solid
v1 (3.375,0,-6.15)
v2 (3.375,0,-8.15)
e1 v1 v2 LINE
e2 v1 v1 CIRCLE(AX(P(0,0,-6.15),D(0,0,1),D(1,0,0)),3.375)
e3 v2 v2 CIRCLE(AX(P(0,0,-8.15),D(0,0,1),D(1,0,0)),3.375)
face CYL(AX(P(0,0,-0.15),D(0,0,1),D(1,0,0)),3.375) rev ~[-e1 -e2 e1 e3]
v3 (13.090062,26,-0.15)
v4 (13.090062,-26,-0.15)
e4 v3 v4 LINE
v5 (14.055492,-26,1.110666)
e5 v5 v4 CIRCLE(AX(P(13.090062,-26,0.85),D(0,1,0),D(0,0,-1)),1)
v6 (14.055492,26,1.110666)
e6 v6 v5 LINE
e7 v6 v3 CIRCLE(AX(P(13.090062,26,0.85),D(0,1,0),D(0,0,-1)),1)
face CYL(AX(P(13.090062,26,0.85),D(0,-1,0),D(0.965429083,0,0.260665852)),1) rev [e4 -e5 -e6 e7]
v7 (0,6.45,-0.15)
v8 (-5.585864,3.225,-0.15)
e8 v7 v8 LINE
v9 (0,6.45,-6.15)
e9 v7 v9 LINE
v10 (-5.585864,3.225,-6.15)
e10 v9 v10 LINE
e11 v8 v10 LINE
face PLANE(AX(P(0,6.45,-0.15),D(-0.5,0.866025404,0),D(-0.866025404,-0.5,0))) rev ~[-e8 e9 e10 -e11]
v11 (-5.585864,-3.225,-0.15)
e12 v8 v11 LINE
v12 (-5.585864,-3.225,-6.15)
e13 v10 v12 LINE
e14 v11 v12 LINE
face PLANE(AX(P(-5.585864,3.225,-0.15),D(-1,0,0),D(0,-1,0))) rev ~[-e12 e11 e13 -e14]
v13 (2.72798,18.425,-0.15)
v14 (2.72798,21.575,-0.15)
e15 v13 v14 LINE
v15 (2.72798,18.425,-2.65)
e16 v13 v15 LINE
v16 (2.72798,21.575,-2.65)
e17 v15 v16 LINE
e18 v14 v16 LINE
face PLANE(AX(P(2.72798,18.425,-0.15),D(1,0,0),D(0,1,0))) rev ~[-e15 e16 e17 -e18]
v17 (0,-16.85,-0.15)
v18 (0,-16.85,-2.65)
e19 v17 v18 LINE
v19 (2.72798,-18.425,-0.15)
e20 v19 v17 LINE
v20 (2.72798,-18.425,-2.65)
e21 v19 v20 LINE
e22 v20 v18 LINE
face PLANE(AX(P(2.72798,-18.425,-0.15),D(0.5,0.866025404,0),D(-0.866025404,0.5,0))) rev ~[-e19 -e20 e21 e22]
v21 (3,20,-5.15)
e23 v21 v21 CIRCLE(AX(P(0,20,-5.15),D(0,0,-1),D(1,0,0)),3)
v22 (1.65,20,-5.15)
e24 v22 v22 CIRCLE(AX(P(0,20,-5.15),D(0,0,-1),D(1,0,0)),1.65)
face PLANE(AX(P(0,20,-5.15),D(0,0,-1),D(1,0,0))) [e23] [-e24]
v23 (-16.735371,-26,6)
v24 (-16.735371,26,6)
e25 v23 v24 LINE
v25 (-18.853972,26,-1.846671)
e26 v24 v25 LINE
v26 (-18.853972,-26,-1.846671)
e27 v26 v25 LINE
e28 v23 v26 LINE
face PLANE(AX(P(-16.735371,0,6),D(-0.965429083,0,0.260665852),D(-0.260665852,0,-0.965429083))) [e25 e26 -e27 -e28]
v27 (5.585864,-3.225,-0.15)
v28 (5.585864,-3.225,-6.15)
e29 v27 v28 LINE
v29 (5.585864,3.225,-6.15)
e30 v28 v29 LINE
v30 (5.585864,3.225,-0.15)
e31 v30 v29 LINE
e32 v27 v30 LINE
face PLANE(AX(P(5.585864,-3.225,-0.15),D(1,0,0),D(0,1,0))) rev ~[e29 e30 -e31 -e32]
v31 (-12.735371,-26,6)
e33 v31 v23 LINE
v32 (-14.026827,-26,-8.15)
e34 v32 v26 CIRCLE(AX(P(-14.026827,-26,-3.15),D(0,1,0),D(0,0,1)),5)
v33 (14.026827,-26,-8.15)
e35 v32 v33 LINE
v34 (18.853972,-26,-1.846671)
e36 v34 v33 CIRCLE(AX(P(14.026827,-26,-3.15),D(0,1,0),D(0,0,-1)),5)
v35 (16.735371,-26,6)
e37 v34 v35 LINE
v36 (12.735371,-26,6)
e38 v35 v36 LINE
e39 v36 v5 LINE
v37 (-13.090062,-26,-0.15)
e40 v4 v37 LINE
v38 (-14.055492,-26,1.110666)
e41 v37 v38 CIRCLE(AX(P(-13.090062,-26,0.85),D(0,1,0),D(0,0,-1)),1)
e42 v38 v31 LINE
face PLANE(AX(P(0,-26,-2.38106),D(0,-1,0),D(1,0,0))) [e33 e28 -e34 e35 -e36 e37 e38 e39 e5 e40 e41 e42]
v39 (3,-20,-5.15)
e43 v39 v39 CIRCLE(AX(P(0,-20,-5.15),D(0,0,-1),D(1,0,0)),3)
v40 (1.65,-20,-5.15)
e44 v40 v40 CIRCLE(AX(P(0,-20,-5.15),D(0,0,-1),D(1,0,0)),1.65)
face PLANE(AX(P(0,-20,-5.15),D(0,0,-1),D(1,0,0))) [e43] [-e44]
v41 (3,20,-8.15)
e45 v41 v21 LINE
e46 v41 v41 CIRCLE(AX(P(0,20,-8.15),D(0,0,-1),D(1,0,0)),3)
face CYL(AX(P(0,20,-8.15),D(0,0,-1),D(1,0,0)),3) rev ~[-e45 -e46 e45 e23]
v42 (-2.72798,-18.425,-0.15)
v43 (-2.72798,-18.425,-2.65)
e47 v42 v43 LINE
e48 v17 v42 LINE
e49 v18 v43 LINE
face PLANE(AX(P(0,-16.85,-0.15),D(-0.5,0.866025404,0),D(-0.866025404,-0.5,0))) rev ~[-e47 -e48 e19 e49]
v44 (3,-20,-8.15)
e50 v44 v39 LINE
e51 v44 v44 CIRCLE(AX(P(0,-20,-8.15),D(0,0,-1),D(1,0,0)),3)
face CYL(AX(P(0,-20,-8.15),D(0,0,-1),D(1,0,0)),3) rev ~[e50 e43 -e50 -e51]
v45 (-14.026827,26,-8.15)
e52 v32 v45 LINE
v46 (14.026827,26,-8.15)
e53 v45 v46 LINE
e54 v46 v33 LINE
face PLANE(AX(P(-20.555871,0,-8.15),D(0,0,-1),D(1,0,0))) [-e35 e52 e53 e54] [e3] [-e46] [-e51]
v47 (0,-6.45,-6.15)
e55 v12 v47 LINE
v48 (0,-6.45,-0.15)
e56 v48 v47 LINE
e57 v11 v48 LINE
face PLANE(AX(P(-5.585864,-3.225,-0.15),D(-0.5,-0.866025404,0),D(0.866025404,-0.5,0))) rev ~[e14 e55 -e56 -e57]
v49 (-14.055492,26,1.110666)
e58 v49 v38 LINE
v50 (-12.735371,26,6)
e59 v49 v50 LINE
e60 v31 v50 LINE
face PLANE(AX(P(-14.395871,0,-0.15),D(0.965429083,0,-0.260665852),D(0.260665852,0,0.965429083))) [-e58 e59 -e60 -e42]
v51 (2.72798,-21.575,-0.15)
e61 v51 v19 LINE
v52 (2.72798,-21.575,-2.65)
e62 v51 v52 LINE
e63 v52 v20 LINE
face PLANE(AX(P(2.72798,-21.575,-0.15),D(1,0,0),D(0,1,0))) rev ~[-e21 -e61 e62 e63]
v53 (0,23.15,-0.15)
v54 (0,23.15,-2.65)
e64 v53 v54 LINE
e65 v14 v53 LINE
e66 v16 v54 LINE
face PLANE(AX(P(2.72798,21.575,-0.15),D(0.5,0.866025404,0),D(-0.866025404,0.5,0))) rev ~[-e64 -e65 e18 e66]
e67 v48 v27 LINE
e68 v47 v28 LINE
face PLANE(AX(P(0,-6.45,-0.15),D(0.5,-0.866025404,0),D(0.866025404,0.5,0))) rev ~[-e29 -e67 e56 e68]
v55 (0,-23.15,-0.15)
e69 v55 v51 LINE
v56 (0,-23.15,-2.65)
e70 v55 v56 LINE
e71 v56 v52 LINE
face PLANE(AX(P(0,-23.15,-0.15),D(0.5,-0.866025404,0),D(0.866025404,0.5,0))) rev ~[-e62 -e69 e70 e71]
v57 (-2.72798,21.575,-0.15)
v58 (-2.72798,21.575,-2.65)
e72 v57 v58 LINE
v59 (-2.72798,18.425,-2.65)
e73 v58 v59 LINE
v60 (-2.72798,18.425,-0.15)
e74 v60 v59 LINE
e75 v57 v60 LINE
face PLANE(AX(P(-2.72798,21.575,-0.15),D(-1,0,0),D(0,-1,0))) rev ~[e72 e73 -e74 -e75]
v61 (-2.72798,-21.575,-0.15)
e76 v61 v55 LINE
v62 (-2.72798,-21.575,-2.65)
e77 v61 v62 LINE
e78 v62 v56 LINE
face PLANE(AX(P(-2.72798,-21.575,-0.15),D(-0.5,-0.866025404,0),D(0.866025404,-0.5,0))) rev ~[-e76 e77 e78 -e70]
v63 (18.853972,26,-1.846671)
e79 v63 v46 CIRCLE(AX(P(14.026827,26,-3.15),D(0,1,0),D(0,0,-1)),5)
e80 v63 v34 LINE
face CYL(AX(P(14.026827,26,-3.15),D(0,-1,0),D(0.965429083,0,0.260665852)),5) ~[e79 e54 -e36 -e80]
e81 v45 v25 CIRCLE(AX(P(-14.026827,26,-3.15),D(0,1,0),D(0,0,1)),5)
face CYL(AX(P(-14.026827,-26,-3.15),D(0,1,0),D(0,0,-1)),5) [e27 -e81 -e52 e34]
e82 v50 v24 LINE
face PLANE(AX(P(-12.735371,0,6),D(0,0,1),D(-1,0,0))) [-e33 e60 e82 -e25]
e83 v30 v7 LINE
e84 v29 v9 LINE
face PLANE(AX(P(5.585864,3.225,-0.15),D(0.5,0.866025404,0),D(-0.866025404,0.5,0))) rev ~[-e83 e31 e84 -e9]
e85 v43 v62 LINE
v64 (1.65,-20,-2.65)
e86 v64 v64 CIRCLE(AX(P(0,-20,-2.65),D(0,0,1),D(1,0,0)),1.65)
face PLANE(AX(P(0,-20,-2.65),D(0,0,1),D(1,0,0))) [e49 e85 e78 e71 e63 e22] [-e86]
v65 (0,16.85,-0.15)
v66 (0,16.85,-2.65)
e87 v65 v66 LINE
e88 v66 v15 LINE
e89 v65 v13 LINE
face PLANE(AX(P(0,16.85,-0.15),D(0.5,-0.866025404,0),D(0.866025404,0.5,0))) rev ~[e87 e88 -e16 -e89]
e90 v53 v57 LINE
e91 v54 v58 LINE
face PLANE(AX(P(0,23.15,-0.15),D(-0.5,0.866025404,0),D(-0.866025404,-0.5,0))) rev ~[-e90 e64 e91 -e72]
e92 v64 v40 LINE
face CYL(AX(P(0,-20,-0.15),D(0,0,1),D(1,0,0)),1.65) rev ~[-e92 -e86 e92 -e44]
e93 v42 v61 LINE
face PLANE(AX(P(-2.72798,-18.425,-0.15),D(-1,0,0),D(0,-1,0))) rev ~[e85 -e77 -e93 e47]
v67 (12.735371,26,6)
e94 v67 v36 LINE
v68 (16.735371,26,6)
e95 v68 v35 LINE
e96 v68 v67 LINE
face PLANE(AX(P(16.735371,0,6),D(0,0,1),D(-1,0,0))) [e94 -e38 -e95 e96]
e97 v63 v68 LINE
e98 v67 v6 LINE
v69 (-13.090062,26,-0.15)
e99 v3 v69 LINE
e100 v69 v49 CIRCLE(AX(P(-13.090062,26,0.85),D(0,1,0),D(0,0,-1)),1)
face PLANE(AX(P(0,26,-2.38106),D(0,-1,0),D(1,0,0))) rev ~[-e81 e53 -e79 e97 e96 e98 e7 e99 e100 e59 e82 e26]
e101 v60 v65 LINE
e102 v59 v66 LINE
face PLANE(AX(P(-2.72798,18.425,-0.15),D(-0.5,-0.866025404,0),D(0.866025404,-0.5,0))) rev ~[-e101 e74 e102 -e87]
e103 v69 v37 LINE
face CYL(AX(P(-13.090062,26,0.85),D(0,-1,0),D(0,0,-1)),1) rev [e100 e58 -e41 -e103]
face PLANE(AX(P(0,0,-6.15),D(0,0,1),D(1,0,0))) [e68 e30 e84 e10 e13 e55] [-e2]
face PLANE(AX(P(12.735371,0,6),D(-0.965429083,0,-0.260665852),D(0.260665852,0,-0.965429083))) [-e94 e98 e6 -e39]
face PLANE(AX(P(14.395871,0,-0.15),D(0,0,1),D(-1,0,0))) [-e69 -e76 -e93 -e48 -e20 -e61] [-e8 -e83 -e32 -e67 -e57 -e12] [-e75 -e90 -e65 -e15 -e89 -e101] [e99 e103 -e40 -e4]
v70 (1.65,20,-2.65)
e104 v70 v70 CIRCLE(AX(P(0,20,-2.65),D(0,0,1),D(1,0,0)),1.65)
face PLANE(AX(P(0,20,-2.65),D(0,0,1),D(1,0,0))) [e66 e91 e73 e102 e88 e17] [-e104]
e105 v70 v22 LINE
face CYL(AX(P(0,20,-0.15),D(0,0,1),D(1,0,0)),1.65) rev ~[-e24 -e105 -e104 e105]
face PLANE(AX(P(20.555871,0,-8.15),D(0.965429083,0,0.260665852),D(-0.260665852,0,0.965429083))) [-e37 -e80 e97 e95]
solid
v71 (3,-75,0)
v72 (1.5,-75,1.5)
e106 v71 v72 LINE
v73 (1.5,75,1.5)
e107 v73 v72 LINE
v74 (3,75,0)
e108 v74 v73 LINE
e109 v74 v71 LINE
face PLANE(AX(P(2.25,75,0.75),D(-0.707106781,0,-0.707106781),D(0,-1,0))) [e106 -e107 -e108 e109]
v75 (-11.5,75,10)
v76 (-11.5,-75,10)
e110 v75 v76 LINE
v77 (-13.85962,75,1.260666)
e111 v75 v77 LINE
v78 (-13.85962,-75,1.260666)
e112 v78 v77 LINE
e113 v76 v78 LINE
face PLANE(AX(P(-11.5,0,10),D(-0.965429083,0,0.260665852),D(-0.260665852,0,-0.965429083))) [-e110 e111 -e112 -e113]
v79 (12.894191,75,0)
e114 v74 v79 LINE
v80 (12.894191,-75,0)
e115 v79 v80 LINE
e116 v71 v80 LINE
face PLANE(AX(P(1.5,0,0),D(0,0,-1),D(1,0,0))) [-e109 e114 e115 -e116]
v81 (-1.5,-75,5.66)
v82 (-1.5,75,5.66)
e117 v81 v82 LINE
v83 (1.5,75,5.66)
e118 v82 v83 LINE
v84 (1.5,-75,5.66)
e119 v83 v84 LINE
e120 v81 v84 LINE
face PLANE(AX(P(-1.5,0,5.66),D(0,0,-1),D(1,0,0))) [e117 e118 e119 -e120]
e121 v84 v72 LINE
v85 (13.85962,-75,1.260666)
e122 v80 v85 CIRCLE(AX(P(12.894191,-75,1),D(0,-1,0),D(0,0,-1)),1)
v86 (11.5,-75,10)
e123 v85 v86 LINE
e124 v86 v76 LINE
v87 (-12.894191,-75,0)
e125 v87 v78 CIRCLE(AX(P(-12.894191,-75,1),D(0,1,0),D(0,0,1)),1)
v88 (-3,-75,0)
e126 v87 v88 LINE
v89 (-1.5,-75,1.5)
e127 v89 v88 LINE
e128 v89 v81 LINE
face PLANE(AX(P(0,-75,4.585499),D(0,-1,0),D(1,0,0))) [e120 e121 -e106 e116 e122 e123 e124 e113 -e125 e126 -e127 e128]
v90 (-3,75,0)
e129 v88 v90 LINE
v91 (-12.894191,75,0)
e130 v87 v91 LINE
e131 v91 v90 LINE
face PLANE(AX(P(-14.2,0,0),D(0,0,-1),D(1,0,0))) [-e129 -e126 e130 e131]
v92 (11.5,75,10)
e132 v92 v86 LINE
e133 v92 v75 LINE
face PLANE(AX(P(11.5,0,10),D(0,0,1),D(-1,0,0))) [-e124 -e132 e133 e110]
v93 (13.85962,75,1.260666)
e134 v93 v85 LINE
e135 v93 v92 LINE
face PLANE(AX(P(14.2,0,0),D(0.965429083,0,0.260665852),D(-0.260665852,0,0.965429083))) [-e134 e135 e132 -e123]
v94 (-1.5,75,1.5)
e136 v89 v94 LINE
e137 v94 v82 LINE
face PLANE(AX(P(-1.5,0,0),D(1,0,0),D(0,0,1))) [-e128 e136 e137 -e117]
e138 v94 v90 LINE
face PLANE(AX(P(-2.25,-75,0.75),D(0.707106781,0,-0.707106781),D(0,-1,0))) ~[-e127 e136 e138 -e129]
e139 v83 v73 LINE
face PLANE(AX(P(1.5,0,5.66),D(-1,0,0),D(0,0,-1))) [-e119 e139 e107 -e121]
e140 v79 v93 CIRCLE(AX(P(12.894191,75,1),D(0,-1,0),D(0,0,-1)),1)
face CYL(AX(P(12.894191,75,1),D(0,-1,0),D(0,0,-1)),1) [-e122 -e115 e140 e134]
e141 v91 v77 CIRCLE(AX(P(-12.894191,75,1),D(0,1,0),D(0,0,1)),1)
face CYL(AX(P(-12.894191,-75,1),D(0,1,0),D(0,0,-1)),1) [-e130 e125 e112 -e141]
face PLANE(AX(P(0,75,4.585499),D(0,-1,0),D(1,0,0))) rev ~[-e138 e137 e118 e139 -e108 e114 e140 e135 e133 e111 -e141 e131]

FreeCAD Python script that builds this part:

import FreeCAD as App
import Part
import Sketcher
Q = App.Units.Quantity


def edges_at(feature, points):
    """Names of the edges that pass closest to the given points."""
    edges = feature.Shape.Edges
    near = lambda p: min(range(len(edges)), key=lambda i: edges[i].distToShape(Part.Vertex(*p))[0])
    return sorted({f"Edge{near(p) + 1}" for p in points})


def add_polygon(sketch, points):
    """Adds a closed chain of lines whose ends are joined by coincident constraints."""
    first, n = sketch.GeometryCount, len(points)
    for a, b in zip(points, points[1:] + points[:1]):
        sketch.addGeometry(Part.LineSegment(App.Vector(*a, 0), App.Vector(*b, 0)), False)
    for i in range(n):
        sketch.addConstraint(Sketcher.Constraint("Coincident", first + i, 2, first + (i + 1) % n, 1))

doc = App.newDocument("Part")
body = doc.addObject("PartDesign::Body", "Body")

# Sketch on XZ plane
sketch1 = body.newObject("Sketcher::SketchObject", "Sketch")
sketch1.AttachmentSupport = (doc.getObject("XZ_Plane"), [""])
sketch1.MapMode = "FlatFace"
add_polygon(sketch1, [(-1.5, 5.7), (1.5, 5.7), (1.5, 0), (14.2, 0), (11.5, 10), (-11.5, 10), (-14.2, 0), (-1.5, 0)])  # lines 0-7
sketch1.addConstraint([
    Sketcher.Constraint("Horizontal", 0),
    Sketcher.Constraint("Vertical", 1),
    Sketcher.Constraint("Horizontal", 2),
    Sketcher.Constraint("Horizontal", 4),
    Sketcher.Constraint("Horizontal", 6),
    Sketcher.Constraint("Vertical", 7),
    Sketcher.Constraint("Symmetric", 2, 2, 5, 2, -1, 1),
    Sketcher.Constraint("Symmetric", 1, 2, 6, 2, -2),
    Sketcher.Constraint("Equal", 3, 5),
    Sketcher.Constraint("DistanceX", 0, 1, 0, 2, 3.0),
    Sketcher.Constraint("DistanceX", 4, 2, 4, 1, 23.0),
    Sketcher.Constraint("DistanceX", 2, 1, 2, 2, 12.7),
    Sketcher.Constraint("DistanceY", -1, 1, 3, 2, 10.0),
    Sketcher.Constraint("DistanceY", 1, 2, 1, 1, 5.66),
])
pad1 = body.newObject("PartDesign::Pad", "Pad")
pad1.Profile = sketch1
pad1.Length = 150
pad1.Midplane = True
doc.recompute()

chamfer = body.newObject("PartDesign::Chamfer", "Chamfer")
chamfer.Base = (pad1, edges_at(pad1, [(-1.5, 0, 0), (1.5, 0, 0)]))
chamfer.Size = 1.5
doc.recompute()

fillet = body.newObject("PartDesign::Fillet", "Fillet")
fillet.Base = (chamfer, edges_at(chamfer, [(14.2, 0, 0), (-14.2, 0, 0)]))
fillet.Radius = 1
body2 = doc.addObject("PartDesign::Body", "Body001")

# Sketch on XZ plane
sketch2 = body2.newObject("Sketcher::SketchObject", "Sketch001")
sketch2.AttachmentSupport = (doc.getObject("XZ_Plane001"), [""])
sketch2.MapMode = "FlatFace"
add_polygon(sketch2, [(-20.6, -8.2), (20.6, -8.2), (16.7, 6), (12.7, 6), (14.4, -0.1), (-14.4, -0.1), (-12.7, 6), (-16.7, 6)])  # lines 0-7
sketch2.addConstraint([
    Sketcher.Constraint("Horizontal", 0),
    Sketcher.Constraint("Horizontal", 2),
    Sketcher.Constraint("Horizontal", 4),
    Sketcher.Constraint("Horizontal", 6),
    Sketcher.Constraint("Symmetric", 2, 2, 5, 2, -2),
    Sketcher.Constraint("Parallel", 1, 3),
    Sketcher.Constraint("Parallel", 5, 7),
    Sketcher.Constraint("Equal", 2, 6),
    Sketcher.Constraint("Equal", 3, 5),
    Sketcher.Constraint("DistanceX", 2, 2, 2, 1, 4.0),
    Sketcher.Constraint("DistanceY", -1, 1, 1, 2, 6.0),
    Sketcher.Constraint("DistanceY", 0, 2, 3, 2, 8.0),
    Sketcher.Constraint("DistanceY", 0, 2, -1, 1, 8.15),
    Sketcher.Constraint("DistanceX", 3, 2, 0, 2, 6.16),
    Sketcher.Constraint("DistanceX", 0, 1, 0, 2, 41.111743),
])
pad2 = body2.newObject("PartDesign::Pad", "Pad001")
pad2.Profile = sketch2
pad2.Length = 52
pad2.Midplane = True

# Sketch on XY plane
sketch3 = body2.newObject("Sketcher::SketchObject", "Sketch002")
sketch3.AttachmentSupport = (doc.getObject("XY_Plane001"), [""])
sketch3.MapMode = "FlatFace"
sketch3.AttachmentOffset = App.Placement(App.Vector(0, 0, -0.15), App.Rotation())
sketch3.addGeometry([
    Part.Circle(App.Vector(0, 0, 0), App.Vector(0, 0, 1), 3.4),
    Part.Circle(App.Vector(0, 20, 0), App.Vector(0, 0, 1), 1.6),
    Part.Circle(App.Vector(0, -20, 0), App.Vector(0, 0, 1), 1.6),
], False)
sketch3.addConstraint([
    Sketcher.Constraint("Coincident", 0, 3, -1, 1),
    Sketcher.Constraint("Equal", 1, 2),
    Sketcher.Constraint("Symmetric", 1, 3, 2, 3, -1, 1),
    Sketcher.Constraint("PointOnObject", 1, 3, -2),
    Sketcher.Constraint("Diameter", 1, 3.3),
    Sketcher.Constraint("Diameter", 0, 6.75),
    Sketcher.Constraint("DistanceY", -1, 1, 1, 3, 20.0),
])
pocket1 = body2.newObject("PartDesign::Pocket", "Pocket")
pocket1.Profile = sketch3
pocket1.Type = "ThroughAll"

# Sketch on XY plane
sketch4 = body2.newObject("Sketcher::SketchObject", "Sketch003")
sketch4.AttachmentSupport = (doc.getObject("XY_Plane001"), [""])
sketch4.MapMode = "FlatFace"
sketch4.AttachmentOffset = App.Placement(App.Vector(0, 0, -0.15), App.Rotation())
add_polygon(sketch4, [(0, -6.5), (5.6, -3.2), (5.6, 3.2), (0, 6.5), (-5.6, 3.2), (-5.6, -3.2)])  # lines 0-5
sketch4.addGeometry(Part.Circle(App.Vector(0, 0, 0), App.Vector(0, 0, 1), 3.4), False)  # 6
sketch4.addConstraint([
    Sketcher.Constraint("Vertical", 1),
    Sketcher.Constraint("Vertical", 4),
    Sketcher.Constraint("Coincident", 6, 3, -1, 1),
    Sketcher.Constraint("Symmetric", 0, 2, 3, 2, -1, 1),
    Sketcher.Constraint("Symmetric", 2, 2, 5, 2, -1, 1),
    Sketcher.Constraint("PointOnObject", 2, 2, -2),
    Sketcher.Constraint("Parallel", 2, 5),
    Sketcher.Constraint("Horizontal", 1, 2, 3, 2),
    Sketcher.Constraint("Diameter", 6, 6.75),
    Sketcher.Constraint("Angle", 0, Q("30 deg")),
    Sketcher.Constraint("DistanceY", 1, 1, 1, 2, 6.45),
    Sketcher.Constraint("Distance", 0, 6.45),
])
pocket2 = body2.newObject("PartDesign::Pocket", "Pocket001")
pocket2.Profile = sketch4
pocket2.Length = 6
doc.recompute()

fillet2 = body2.newObject("PartDesign::Fillet", "Fillet001")
fillet2.Base = (pocket2, edges_at(pocket2, [(-14.396, 0, -0.15), (14.396, 0, -0.15)]))
fillet2.Radius = 1
doc.recompute()

fillet3 = body2.newObject("PartDesign::Fillet", "Fillet002")
fillet3.Base = (fillet2, edges_at(fillet2, [(-20.556, 0, -8.15), (20.556, 0, -8.15)]))
fillet3.Radius = 5

# Sketch on XY plane
sketch5 = body2.newObject("Sketcher::SketchObject", "Sketch004")
sketch5.AttachmentSupport = (doc.getObject("XY_Plane001"), [""])
sketch5.MapMode = "FlatFace"
sketch5.AttachmentOffset = App.Placement(App.Vector(0, 0, -8.15), App.Rotation())
sketch5.addGeometry([
    Part.Circle(App.Vector(0, -20, 0), App.Vector(0, 0, 1), 3),
    Part.Circle(App.Vector(0, -20, 0), App.Vector(0, 0, 1), 1.6),
    Part.Circle(App.Vector(0, 20, 0), App.Vector(0, 0, 1), 3),
    Part.Circle(App.Vector(0, 20, 0), App.Vector(0, 0, 1), 1.6),
], False)
sketch5.addConstraint([
    Sketcher.Constraint("Coincident", 1, 3, 0, 3),
    Sketcher.Constraint("Coincident", 3, 3, 2, 3),
    Sketcher.Constraint("Equal", 0, 2),
    Sketcher.Constraint("Equal", 1, 3),
    Sketcher.Constraint("Symmetric", 0, 3, 2, 3, -1, 1),
    Sketcher.Constraint("PointOnObject", 0, 3, -2),
    Sketcher.Constraint("Diameter", 0, 6.0),
    Sketcher.Constraint("Diameter", 1, 3.3),
    Sketcher.Constraint("DistanceY", 0, 3, -1, 1, 20.0),
])
pocket3 = body2.newObject("PartDesign::Pocket", "Pocket002")
pocket3.Profile = sketch5
pocket3.Length = 3
pocket3.Reversed = True

# Sketch on XY plane
sketch6 = body2.newObject("Sketcher::SketchObject", "Sketch005")
sketch6.AttachmentSupport = (doc.getObject("XY_Plane001"), [""])
sketch6.MapMode = "FlatFace"
sketch6.AttachmentOffset = App.Placement(App.Vector(0, 0, -0.15), App.Rotation())
add_polygon(sketch6, [(2.7, 21.6), (0, 23.1), (-2.7, 21.6), (-2.7, 18.4), (0, 16.9), (2.7, 18.4)])  # lines 0-5
sketch6.addGeometry(Part.Circle(App.Vector(0, 20, 0), App.Vector(0, 0, 1), 1.6), False)  # 6
add_polygon(sketch6, [(2.7, -21.6), (2.7, -18.4), (0, -16.9), (-2.7, -18.4), (-2.7, -21.6), (0, -23.1)])  # lines 7-12
sketch6.addGeometry(Part.Circle(App.Vector(0, -20, 0), App.Vector(0, 0, 1), 1.6), False)  # 13
sketch6.addConstraint([
    Sketcher.Constraint("Vertical", 2),
    Sketcher.Constraint("Vertical", 5),
    Sketcher.Constraint("Vertical", 7),
    Sketcher.Constraint("Vertical", 10),
    Sketcher.Constraint("Equal", 6, 13),
    Sketcher.Constraint("Symmetric", 6, 3, 13, 3, -1, 1),
    Sketcher.Constraint("Symmetric", 2, 2, 7, 2, -1, 1),
    Sketcher.Constraint("Symmetric", 3, 2, 8, 2, -1, 1),
    Sketcher.Constraint("Symmetric", 4, 2, 9, 2, -1, 1),
    Sketcher.Constraint("Symmetric", 0, 2, 11, 2, -1, 1),
    Sketcher.Constraint("Symmetric", 2, 2, 4, 2, -2),
    Sketcher.Constraint("PointOnObject", 6, 3, -2),
    Sketcher.Constraint("PointOnObject", 0, 2, -2),
    Sketcher.Constraint("PointOnObject", 3, 2, -2),
    Sketcher.Constraint("Parallel", 0, 3),
    Sketcher.Constraint("Parallel", 1, 4),
    Sketcher.Constraint("Parallel", 8, 11),
    Sketcher.Constraint("Parallel", 9, 12),
    Sketcher.Constraint("Diameter", 6, 3.3),
    Sketcher.Constraint("Angle", 0, Q("150 deg")),
    Sketcher.Constraint("DistanceY", -1, 1, 6, 3, 20.0),
    Sketcher.Constraint("DistanceY", 2, 2, 2, 1, 3.15),
    Sketcher.Constraint("DistanceY", 3, 2, 0, 2, 6.3),
    Sketcher.Constraint("DistanceY", 8, 2, 3, 2, 33.7),
])
pocket4 = body2.newObject("PartDesign::Pocket", "Pocket003")
pocket4.Profile = sketch6
pocket4.Length = 2.5

doc.recompute()
